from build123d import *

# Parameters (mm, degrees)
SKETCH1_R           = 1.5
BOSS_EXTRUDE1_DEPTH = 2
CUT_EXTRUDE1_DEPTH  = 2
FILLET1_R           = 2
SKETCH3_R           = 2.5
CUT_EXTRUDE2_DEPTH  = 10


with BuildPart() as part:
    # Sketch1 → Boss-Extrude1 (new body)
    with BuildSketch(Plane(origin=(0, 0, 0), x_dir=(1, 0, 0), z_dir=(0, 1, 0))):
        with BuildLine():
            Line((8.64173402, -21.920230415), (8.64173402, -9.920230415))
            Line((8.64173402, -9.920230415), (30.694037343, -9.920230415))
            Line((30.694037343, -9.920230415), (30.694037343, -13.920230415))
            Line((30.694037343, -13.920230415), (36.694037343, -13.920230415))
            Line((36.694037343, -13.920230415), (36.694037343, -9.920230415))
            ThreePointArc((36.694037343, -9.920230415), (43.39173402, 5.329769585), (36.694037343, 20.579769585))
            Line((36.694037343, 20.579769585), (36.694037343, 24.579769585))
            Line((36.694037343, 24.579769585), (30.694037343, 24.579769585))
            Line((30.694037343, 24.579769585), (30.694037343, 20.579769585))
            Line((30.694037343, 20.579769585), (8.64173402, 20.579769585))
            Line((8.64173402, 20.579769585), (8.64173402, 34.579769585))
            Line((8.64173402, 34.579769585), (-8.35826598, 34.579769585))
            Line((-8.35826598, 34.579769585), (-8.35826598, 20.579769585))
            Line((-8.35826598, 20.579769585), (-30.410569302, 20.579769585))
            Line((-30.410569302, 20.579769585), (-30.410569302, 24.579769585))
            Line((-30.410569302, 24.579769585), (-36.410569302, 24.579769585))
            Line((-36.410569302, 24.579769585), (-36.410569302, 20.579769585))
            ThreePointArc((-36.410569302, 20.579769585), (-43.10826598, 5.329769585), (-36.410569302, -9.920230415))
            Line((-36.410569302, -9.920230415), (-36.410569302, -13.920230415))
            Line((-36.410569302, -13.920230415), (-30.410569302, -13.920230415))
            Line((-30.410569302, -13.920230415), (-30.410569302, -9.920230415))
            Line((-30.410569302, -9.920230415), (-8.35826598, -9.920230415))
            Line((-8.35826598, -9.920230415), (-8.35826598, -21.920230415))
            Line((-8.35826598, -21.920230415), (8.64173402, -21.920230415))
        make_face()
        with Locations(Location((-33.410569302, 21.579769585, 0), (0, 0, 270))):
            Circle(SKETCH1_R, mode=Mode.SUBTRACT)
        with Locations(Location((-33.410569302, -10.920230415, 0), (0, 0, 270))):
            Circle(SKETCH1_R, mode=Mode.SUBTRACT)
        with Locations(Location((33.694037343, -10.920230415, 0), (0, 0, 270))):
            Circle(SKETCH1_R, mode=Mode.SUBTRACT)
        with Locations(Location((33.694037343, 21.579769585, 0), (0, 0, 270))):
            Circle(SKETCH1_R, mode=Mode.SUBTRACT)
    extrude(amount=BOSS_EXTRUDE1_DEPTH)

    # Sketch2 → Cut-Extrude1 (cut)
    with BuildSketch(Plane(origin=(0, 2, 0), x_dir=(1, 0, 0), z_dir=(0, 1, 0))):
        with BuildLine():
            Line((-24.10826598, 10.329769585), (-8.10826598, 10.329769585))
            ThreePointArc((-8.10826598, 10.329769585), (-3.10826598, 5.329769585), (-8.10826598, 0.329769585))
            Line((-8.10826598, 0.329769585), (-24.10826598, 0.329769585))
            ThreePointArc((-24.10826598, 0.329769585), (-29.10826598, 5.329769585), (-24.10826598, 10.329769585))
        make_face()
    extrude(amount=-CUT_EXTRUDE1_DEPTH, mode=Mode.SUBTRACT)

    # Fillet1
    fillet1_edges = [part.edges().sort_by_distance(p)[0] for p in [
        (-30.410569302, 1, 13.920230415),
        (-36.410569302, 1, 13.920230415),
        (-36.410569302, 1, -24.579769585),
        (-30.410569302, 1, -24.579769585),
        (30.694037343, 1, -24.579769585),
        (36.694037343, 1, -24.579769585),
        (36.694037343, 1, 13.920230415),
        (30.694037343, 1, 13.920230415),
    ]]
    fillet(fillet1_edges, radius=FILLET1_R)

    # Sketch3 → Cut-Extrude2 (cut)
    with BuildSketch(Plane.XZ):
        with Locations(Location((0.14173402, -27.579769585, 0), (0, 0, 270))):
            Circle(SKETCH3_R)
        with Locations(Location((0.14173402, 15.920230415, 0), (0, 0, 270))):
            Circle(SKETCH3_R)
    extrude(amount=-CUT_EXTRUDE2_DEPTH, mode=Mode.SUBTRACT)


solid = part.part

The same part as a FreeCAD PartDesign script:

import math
import FreeCAD as App
import Part
import Sketcher


def edges_at(feature, points):
    """Names of the edges that pass closest to the given points."""
    edges = feature.Shape.Edges
    near = lambda p: min(range(len(edges)), key=lambda i: edges[i].distToShape(Part.Vertex(*p))[0])
    return sorted({f"Edge{near(p) + 1}" for p in points})

doc = App.newDocument("Part")
body = doc.addObject("PartDesign::Body", "Body")

# Sketch on XZ plane
sketch1 = doc.addObject("Sketcher::SketchObject", "Sketch")
body.addObject(sketch1)
sketch1.AttachmentSupport = (doc.XZ_Plane, [""])
sketch1.MapMode = "FlatFace"
sketch1.addGeometry(Part.LineSegment(App.Vector(8.641734, 21.92023, 0), App.Vector(8.641734, 9.92023, 0)), False)
sketch1.addGeometry(Part.LineSegment(App.Vector(8.641734, 9.92023, 0), App.Vector(30.694037, 9.92023, 0)), False)
sketch1.addGeometry(Part.LineSegment(App.Vector(30.694037, 9.92023, 0), App.Vector(30.694037, 13.92023, 0)), False)
sketch1.addGeometry(Part.LineSegment(App.Vector(30.694037, 13.92023, 0), App.Vector(36.694037, 13.92023, 0)), False)
sketch1.addGeometry(Part.LineSegment(App.Vector(36.694037, 13.92023, 0), App.Vector(36.694037, 9.92023, 0)), False)
sketch1.addGeometry(Part.ArcOfCircle(Part.Circle(App.Vector(22.681507, -5.32977, 0), App.Vector(0, 0, 1), 20.710227), math.radians(-47.421512), math.radians(47.421512)), False)
sketch1.addGeometry(Part.LineSegment(App.Vector(36.694037, -20.57977, 0), App.Vector(36.694037, -24.57977, 0)), False)
sketch1.addGeometry(Part.LineSegment(App.Vector(36.694037, -24.57977, 0), App.Vector(30.694037, -24.57977, 0)), False)
sketch1.addGeometry(Part.LineSegment(App.Vector(30.694037, -24.57977, 0), App.Vector(30.694037, -20.57977, 0)), False)
sketch1.addGeometry(Part.LineSegment(App.Vector(30.694037, -20.57977, 0), App.Vector(8.641734, -20.57977, 0)), False)
sketch1.addGeometry(Part.LineSegment(App.Vector(8.641734, -20.57977, 0), App.Vector(8.641734, -34.57977, 0)), False)
sketch1.addGeometry(Part.LineSegment(App.Vector(8.641734, -34.57977, 0), App.Vector(-8.358266, -34.57977, 0)), False)
sketch1.addGeometry(Part.LineSegment(App.Vector(-8.358266, -34.57977, 0), App.Vector(-8.358266, -20.57977, 0)), False)
sketch1.addGeometry(Part.LineSegment(App.Vector(-8.358266, -20.57977, 0), App.Vector(-30.410569, -20.57977, 0)), False)
sketch1.addGeometry(Part.LineSegment(App.Vector(-30.410569, -20.57977, 0), App.Vector(-30.410569, -24.57977, 0)), False)
sketch1.addGeometry(Part.LineSegment(App.Vector(-30.410569, -24.57977, 0), App.Vector(-36.410569, -24.57977, 0)), False)
sketch1.addGeometry(Part.LineSegment(App.Vector(-36.410569, -24.57977, 0), App.Vector(-36.410569, -20.57977, 0)), False)
sketch1.addGeometry(Part.ArcOfCircle(Part.Circle(App.Vector(-22.398039, -5.32977, 0), App.Vector(0, 0, 1), 20.710227), math.radians(132.578488), math.radians(227.421512)), False)
sketch1.addGeometry(Part.LineSegment(App.Vector(-36.410569, 9.92023, 0), App.Vector(-36.410569, 13.92023, 0)), False)
sketch1.addGeometry(Part.LineSegment(App.Vector(-36.410569, 13.92023, 0), App.Vector(-30.410569, 13.92023, 0)), False)
sketch1.addGeometry(Part.LineSegment(App.Vector(-30.410569, 13.92023, 0), App.Vector(-30.410569, 9.92023, 0)), False)
sketch1.addGeometry(Part.LineSegment(App.Vector(-30.410569, 9.92023, 0), App.Vector(-8.358266, 9.92023, 0)), False)
sketch1.addGeometry(Part.LineSegment(App.Vector(-8.358266, 9.92023, 0), App.Vector(-8.358266, 21.92023, 0)), False)
sketch1.addGeometry(Part.LineSegment(App.Vector(-8.358266, 21.92023, 0), App.Vector(8.641734, 21.92023, 0)), False)
sketch1.addGeometry(Part.Circle(App.Vector(-33.410569, 10.92023, 0), App.Vector(0, 0, 1), 1.5), False)
sketch1.addGeometry(Part.Circle(App.Vector(33.694037, 10.92023, 0), App.Vector(0, 0, 1), 1.5), False)
sketch1.addGeometry(Part.Circle(App.Vector(-33.410569, -21.57977, 0), App.Vector(0, 0, 1), 1.5), False)
sketch1.addGeometry(Part.Circle(App.Vector(33.694037, -21.57977, 0), App.Vector(0, 0, 1), 1.5), False)
sketch1.addConstraint(Sketcher.Constraint("Coincident", 0, 2, 1, 1))
sketch1.addConstraint(Sketcher.Constraint("Coincident", 1, 2, 2, 1))
sketch1.addConstraint(Sketcher.Constraint("Coincident", 2, 2, 3, 1))
sketch1.addConstraint(Sketcher.Constraint("Coincident", 3, 2, 4, 1))
sketch1.addConstraint(Sketcher.Constraint("Coincident", 4, 2, 5, 2))
sketch1.addConstraint(Sketcher.Constraint("Coincident", 5, 1, 6, 1))
sketch1.addConstraint(Sketcher.Constraint("Coincident", 6, 2, 7, 1))
sketch1.addConstraint(Sketcher.Constraint("Coincident", 7, 2, 8, 1))
sketch1.addConstraint(Sketcher.Constraint("Coincident", 8, 2, 9, 1))
sketch1.addConstraint(Sketcher.Constraint("Coincident", 9, 2, 10, 1))
sketch1.addConstraint(Sketcher.Constraint("Coincident", 10, 2, 11, 1))
sketch1.addConstraint(Sketcher.Constraint("Coincident", 11, 2, 12, 1))
sketch1.addConstraint(Sketcher.Constraint("Coincident", 12, 2, 13, 1))
sketch1.addConstraint(Sketcher.Constraint("Coincident", 13, 2, 14, 1))
sketch1.addConstraint(Sketcher.Constraint("Coincident", 14, 2, 15, 1))
sketch1.addConstraint(Sketcher.Constraint("Coincident", 15, 2, 16, 1))
sketch1.addConstraint(Sketcher.Constraint("Coincident", 16, 2, 17, 2))
sketch1.addConstraint(Sketcher.Constraint("Coincident", 17, 1, 18, 1))
sketch1.addConstraint(Sketcher.Constraint("Coincident", 18, 2, 19, 1))
sketch1.addConstraint(Sketcher.Constraint("Coincident", 19, 2, 20, 1))
sketch1.addConstraint(Sketcher.Constraint("Coincident", 20, 2, 21, 1))
sketch1.addConstraint(Sketcher.Constraint("Coincident", 21, 2, 22, 1))
sketch1.addConstraint(Sketcher.Constraint("Coincident", 22, 2, 23, 1))
sketch1.addConstraint(Sketcher.Constraint("Coincident", 23, 2, 0, 1))
sketch1.addConstraint(Sketcher.Constraint("Vertical", 0))
sketch1.addConstraint(Sketcher.Constraint("Horizontal", 1))
sketch1.addConstraint(Sketcher.Constraint("Vertical", 2))
sketch1.addConstraint(Sketcher.Constraint("Horizontal", 3))
sketch1.addConstraint(Sketcher.Constraint("Vertical", 4))
sketch1.addConstraint(Sketcher.Constraint("Vertical", 6))
sketch1.addConstraint(Sketcher.Constraint("Horizontal", 7))
sketch1.addConstraint(Sketcher.Constraint("Vertical", 8))
sketch1.addConstraint(Sketcher.Constraint("Horizontal", 9))
sketch1.addConstraint(Sketcher.Constraint("Vertical", 10))
sketch1.addConstraint(Sketcher.Constraint("Horizontal", 11))
sketch1.addConstraint(Sketcher.Constraint("Vertical", 12))
sketch1.addConstraint(Sketcher.Constraint("Horizontal", 13))
sketch1.addConstraint(Sketcher.Constraint("Vertical", 14))
sketch1.addConstraint(Sketcher.Constraint("Horizontal", 15))
sketch1.addConstraint(Sketcher.Constraint("Vertical", 16))
sketch1.addConstraint(Sketcher.Constraint("Vertical", 18))
sketch1.addConstraint(Sketcher.Constraint("Horizontal", 19))
sketch1.addConstraint(Sketcher.Constraint("Vertical", 20))
sketch1.addConstraint(Sketcher.Constraint("Horizontal", 21))
sketch1.addConstraint(Sketcher.Constraint("Vertical", 22))
sketch1.addConstraint(Sketcher.Constraint("Horizontal", 23))
sketch1.addConstraint(Sketcher.Constraint("Equal", 5, 17))
sketch1.addConstraint(Sketcher.Constraint("Equal", 24, 25))
sketch1.addConstraint(Sketcher.Constraint("Equal", 25, 26))
sketch1.addConstraint(Sketcher.Constraint("Equal", 26, 27))
sketch1.addConstraint(Sketcher.Constraint("Horizontal", 5, 3, 17, 3))
sketch1.addConstraint(Sketcher.Constraint("Horizontal", 24, 3, 25, 3))
sketch1.addConstraint(Sketcher.Constraint("Horizontal", 26, 3, 27, 3))
sketch1.addConstraint(Sketcher.Constraint("Horizontal", 1, 2, 4, 2))
sketch1.addConstraint(Sketcher.Constraint("Horizontal", 5, 1, 8, 2))
sketch1.addConstraint(Sketcher.Constraint("Horizontal", 9, 2, 12, 2))
sketch1.addConstraint(Sketcher.Constraint("Horizontal", 7, 2, 14, 2))
sketch1.addConstraint(Sketcher.Constraint("Horizontal", 13, 2, 16, 2))
sketch1.addConstraint(Sketcher.Constraint("Horizontal", 4, 2, 17, 1))
sketch1.addConstraint(Sketcher.Constraint("Horizontal", 3, 2, 18, 2))
sketch1.addConstraint(Sketcher.Constraint("Horizontal", 17, 1, 20, 2))
sketch1.addConstraint(Sketcher.Constraint("Vertical", 24, 3, 26, 3))
sketch1.addConstraint(Sketcher.Constraint("Vertical", 25, 3, 27, 3))
sketch1.addConstraint(Sketcher.Constraint("Vertical", 4, 2, 5, 1))
sketch1.addConstraint(Sketcher.Constraint("Vertical", 2, 2, 7, 2))
sketch1.addConstraint(Sketcher.Constraint("Vertical", 0, 2, 9, 2))
sketch1.addConstraint(Sketcher.Constraint("Vertical", 14, 2, 19, 2))
sketch1.addConstraint(Sketcher.Constraint("Vertical", 12, 2, 21, 2))
sketch1.addConstraint(Sketcher.Constraint("Equal", 9, 13))
sketch1.addConstraint(Sketcher.Constraint("Equal", 7, 15))
sketch1.addConstraint(Sketcher.Constraint("Equal", 4, 6))
sketch1.addConstraint(Sketcher.Constraint("Diameter", 24, 3.0))
sketch1.addConstraint(Sketcher.Constraint("DistanceX", 3, 1, 3, 2, 6.0))
sketch1.addConstraint(Sketcher.Constraint("DistanceX", 11, 2, 11, 1, 17.0))
sketch1.addConstraint(Sketcher.Constraint("DistanceY", 0, 2, 0, 1, 12.0))
sketch1.addConstraint(Sketcher.Constraint("DistanceY", 2, 1, 2, 2, 4.0))
sketch1.addConstraint(Sketcher.Constraint("DistanceY", 10, 2, 10, 1, 14.0))
sketch1.addConstraint(Sketcher.Constraint("DistanceY", 0, 2, 25, 3, 1.0))
sketch1.addConstraint(Sketcher.Constraint("DistanceX", 1, 2, 25, 3, 3.0))
sketch1.addConstraint(Sketcher.Constraint("DistanceY", 27, 3, 5, 1, 1.0))
sketch1.addConstraint(Sketcher.Constraint("DistanceX", 26, 3, 13, 2, 3.0))
sketch1.addConstraint(Sketcher.Constraint("DistanceY", 26, 3, 24, 3, 32.5))
sketch1.addConstraint(Sketcher.Constraint("Radius", 5, 20.710227))
sketch1.addConstraint(Sketcher.Constraint("DistanceX", 1, 1, 1, 2, 22.052303))
sketch1.addConstraint(Sketcher.Constraint("DistanceY", 5, 3, -1, 1, 5.32977))
sketch1.addConstraint(Sketcher.Constraint("DistanceX", 17, 3, -1, 1, 22.398039))
pad1 = doc.addObject("PartDesign::Pad", "Pad")
body.addObject(pad1)
pad1.Profile = sketch1
pad1.Length = 2
pad1.Reversed = True

# Sketch on XZ plane
sketch2 = doc.addObject("Sketcher::SketchObject", "Sketch001")
body.addObject(sketch2)
sketch2.AttachmentSupport = (doc.XZ_Plane, [""])
sketch2.MapMode = "FlatFace"
sketch2.AttachmentOffset = App.Placement(App.Vector(0, 0, -2), App.Rotation())
sketch2.addGeometry(Part.LineSegment(App.Vector(-8.108266, -10.32977, 0), App.Vector(-24.108266, -10.32977, 0)), False)
sketch2.addGeometry(Part.ArcOfCircle(Part.Circle(App.Vector(-24.108266, -5.32977, 0), App.Vector(0, 0, 1), 5), math.radians(90), math.radians(270)), False)
sketch2.addGeometry(Part.LineSegment(App.Vector(-24.108266, -0.32977, 0), App.Vector(-8.108266, -0.32977, 0)), False)
sketch2.addGeometry(Part.ArcOfCircle(Part.Circle(App.Vector(-8.108266, -5.32977, 0), App.Vector(0, 0, 1), 5), math.radians(-90), math.radians(90)), False)
sketch2.addConstraint(Sketcher.Constraint("Tangent", 0, 2, 1, 2))
sketch2.addConstraint(Sketcher.Constraint("Tangent", 1, 1, 2, 1))
sketch2.addConstraint(Sketcher.Constraint("Tangent", 2, 2, 3, 2))
sketch2.addConstraint(Sketcher.Constraint("Tangent", 3, 1, 0, 1))
sketch2.addConstraint(Sketcher.Constraint("Horizontal", 0))
sketch2.addConstraint(Sketcher.Constraint("Horizontal", 2))
sketch2.addConstraint(Sketcher.Constraint("Radius", 1, 5.0))
sketch2.addConstraint(Sketcher.Constraint("DistanceX", 0, 2, 0, 1, 16.0))
sketch2.addConstraint(Sketcher.Constraint("DistanceY", 1, 3, -1, 1, 5.32977))
sketch2.addConstraint(Sketcher.Constraint("DistanceX", 1, 3, -1, 1, 24.108266))
pocket1 = doc.addObject("PartDesign::Pocket", "Pocket")
body.addObject(pocket1)
pocket1.Profile = sketch2
pocket1.Length = 2
pocket1.Reversed = True
doc.recompute()

fillet = doc.addObject("PartDesign::Fillet", "Fillet")
body.addObject(fillet)
fillet.Base = (pocket1, edges_at(pocket1, [
    (-30.411, 1, 13.92),
    (-36.411, 1, 13.92),
    (-36.411, 1, -24.58),
    (-30.411, 1, -24.58),
    (30.694, 1, -24.58),
    (36.694, 1, -24.58),
    (36.694, 1, 13.92),
    (30.694, 1, 13.92),
]))
fillet.Radius = 2

# Sketch on XZ plane
sketch3 = doc.addObject("Sketcher::SketchObject", "Sketch002")
body.addObject(sketch3)
sketch3.AttachmentSupport = (doc.XZ_Plane, [""])
sketch3.MapMode = "FlatFace"
sketch3.addGeometry(Part.Circle(App.Vector(0.141734, -27.57977, 0), App.Vector(0, 0, 1), 2.5), False)
sketch3.addGeometry(Part.Circle(App.Vector(0.141734, 15.92023, 0), App.Vector(0, 0, 1), 2.5), False)
sketch3.addConstraint(Sketcher.Constraint("Equal", 0, 1))
sketch3.addConstraint(Sketcher.Constraint("Vertical", 0, 3, 1, 3))
sketch3.addConstraint(Sketcher.Constraint("Diameter", 0, 5.0))
sketch3.addConstraint(Sketcher.Constraint("DistanceY", 0, 3, 1, 3, 43.5))
sketch3.addConstraint(Sketcher.Constraint("DistanceY", 0, 3, -1, 1, 27.57977))
sketch3.addConstraint(Sketcher.Constraint("DistanceX", -1, 1, 0, 3, 0.141734))
pocket2 = doc.addObject("PartDesign::Pocket", "Pocket001")
body.addObject(pocket2)
pocket2.Profile = sketch3
pocket2.Length = 10

doc.recompute()
